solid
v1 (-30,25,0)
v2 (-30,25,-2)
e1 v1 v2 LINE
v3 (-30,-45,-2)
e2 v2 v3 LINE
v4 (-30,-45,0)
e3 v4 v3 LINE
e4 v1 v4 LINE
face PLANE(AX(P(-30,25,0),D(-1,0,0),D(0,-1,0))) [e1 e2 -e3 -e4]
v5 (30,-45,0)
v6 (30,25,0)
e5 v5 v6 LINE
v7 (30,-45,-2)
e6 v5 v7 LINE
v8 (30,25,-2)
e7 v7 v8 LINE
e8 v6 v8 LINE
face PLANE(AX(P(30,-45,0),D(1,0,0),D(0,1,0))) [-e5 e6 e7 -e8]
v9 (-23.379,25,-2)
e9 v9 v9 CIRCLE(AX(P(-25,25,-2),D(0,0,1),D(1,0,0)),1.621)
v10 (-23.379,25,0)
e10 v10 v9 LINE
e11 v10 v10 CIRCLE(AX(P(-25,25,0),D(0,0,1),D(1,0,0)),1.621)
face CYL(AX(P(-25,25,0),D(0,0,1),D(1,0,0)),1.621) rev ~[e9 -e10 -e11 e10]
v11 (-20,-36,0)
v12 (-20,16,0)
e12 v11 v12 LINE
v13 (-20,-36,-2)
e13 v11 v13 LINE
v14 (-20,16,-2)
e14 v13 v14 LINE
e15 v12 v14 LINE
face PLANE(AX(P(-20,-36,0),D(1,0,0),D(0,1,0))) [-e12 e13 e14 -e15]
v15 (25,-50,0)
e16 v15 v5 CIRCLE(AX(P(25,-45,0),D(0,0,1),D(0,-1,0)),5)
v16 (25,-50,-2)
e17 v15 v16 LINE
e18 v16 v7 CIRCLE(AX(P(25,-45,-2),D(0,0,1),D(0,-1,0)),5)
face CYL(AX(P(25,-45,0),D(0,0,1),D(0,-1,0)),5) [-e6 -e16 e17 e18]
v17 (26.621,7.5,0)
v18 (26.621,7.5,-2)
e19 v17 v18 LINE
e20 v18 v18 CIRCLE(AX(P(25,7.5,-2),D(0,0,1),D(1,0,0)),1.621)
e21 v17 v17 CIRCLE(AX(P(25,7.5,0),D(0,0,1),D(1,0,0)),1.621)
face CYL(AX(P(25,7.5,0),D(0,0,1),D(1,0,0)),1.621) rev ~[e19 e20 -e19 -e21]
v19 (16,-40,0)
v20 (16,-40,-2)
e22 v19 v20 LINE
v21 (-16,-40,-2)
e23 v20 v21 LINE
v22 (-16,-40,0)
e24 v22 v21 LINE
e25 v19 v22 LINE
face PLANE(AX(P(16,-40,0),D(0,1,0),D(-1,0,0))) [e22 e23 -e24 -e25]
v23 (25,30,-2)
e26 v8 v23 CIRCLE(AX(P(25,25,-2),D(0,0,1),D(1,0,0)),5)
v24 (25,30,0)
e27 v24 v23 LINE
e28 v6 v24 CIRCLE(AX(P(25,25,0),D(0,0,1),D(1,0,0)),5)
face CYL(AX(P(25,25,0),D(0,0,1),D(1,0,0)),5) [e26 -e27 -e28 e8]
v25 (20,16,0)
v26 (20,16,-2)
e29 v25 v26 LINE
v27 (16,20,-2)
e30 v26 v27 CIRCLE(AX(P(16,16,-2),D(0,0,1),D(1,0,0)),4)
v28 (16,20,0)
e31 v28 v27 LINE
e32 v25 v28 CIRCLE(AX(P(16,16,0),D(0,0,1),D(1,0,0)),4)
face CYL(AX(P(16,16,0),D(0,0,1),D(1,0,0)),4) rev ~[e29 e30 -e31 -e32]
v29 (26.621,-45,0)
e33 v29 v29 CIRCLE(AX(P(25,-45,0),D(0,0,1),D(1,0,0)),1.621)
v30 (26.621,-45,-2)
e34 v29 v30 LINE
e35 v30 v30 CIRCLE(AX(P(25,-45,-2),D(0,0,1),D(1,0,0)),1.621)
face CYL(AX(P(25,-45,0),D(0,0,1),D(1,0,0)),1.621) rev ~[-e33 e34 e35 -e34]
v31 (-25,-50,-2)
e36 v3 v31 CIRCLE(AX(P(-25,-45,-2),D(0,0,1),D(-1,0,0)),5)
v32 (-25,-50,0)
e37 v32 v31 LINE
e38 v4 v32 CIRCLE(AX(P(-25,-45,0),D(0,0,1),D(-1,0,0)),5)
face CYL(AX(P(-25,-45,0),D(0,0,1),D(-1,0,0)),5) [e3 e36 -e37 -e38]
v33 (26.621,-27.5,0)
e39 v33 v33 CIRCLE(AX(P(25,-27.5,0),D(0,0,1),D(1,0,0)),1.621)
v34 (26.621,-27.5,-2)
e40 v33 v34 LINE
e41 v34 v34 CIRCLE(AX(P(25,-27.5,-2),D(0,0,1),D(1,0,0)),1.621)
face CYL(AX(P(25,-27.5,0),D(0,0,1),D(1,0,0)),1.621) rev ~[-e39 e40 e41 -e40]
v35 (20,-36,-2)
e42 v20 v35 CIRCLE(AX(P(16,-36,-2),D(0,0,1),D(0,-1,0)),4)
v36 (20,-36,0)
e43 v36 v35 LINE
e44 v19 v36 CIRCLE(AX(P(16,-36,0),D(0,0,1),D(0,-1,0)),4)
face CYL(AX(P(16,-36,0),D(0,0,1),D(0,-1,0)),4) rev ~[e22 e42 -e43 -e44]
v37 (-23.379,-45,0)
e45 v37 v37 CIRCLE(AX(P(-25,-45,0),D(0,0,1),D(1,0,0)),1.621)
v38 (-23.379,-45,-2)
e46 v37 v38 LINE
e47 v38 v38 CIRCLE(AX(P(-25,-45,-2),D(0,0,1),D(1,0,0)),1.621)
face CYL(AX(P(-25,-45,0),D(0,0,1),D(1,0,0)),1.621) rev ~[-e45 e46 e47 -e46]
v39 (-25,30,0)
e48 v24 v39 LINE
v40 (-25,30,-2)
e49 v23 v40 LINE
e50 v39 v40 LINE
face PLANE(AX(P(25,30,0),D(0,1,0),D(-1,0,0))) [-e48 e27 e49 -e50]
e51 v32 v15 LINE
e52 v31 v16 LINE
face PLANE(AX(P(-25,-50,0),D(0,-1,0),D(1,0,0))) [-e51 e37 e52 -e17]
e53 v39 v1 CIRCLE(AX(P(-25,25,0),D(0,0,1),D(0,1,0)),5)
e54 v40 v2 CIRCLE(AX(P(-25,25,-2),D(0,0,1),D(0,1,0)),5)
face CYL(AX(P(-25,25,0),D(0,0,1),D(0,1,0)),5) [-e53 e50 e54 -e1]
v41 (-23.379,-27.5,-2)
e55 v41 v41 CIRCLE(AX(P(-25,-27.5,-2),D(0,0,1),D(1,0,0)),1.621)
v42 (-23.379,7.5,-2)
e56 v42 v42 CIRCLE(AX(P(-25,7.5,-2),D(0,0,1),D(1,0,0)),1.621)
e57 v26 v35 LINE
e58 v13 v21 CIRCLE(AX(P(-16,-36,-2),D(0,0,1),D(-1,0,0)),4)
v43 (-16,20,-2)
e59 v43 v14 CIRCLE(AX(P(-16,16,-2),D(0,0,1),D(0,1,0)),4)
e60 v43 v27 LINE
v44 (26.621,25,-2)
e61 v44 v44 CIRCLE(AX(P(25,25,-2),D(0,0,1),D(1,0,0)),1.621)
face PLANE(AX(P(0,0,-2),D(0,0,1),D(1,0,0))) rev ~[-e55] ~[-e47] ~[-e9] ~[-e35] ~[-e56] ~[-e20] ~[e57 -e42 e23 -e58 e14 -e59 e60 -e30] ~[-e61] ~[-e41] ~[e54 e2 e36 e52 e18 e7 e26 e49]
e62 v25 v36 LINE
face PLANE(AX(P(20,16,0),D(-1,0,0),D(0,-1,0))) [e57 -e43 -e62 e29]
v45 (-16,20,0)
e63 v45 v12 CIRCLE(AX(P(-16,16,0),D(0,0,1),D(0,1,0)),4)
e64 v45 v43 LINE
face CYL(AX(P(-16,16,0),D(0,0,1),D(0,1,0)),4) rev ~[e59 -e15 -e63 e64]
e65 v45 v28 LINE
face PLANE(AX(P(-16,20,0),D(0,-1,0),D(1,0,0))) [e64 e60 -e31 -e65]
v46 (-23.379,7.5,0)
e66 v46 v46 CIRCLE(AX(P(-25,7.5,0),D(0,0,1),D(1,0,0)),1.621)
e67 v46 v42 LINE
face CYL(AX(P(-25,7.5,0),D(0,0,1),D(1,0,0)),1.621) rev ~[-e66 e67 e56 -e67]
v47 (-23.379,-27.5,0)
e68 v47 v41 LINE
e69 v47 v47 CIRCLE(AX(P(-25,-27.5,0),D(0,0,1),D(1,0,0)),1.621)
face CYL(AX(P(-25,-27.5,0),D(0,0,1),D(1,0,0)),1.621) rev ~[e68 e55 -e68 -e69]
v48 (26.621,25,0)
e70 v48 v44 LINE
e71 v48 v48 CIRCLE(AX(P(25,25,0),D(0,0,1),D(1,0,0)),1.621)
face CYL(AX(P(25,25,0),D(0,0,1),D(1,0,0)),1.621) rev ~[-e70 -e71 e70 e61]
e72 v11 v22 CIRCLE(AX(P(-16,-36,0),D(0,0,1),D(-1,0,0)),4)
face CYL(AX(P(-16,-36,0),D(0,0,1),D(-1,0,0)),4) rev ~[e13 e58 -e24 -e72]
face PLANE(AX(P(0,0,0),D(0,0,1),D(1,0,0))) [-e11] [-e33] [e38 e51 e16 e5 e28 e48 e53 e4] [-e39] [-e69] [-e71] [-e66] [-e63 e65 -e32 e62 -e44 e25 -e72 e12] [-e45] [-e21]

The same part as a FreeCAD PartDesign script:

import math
import FreeCAD as App
import Part
import Sketcher

V = App.Vector

doc = App.newDocument("Part")
body = doc.addObject("PartDesign::Body", "Body")

sketch1 = body.newObject("Sketcher::SketchObject", "Sketch")
sketch1.AttachmentSupport = (doc.getObject("XY_Plane"), [""])
sketch1.MapMode = "FlatFace"
sketch1.addGeometry(Part.LineSegment(V(-30, 25, 0), V(-30, -45, 0)), False)
sketch1.addGeometry(Part.ArcOfCircle(Part.Circle(V(-25, -45, 0), V(0, 0, 1), 5), math.radians(180), math.radians(270)), False)
sketch1.addGeometry(Part.LineSegment(V(-25, -50, 0), V(25, -50, 0)), False)
sketch1.addGeometry(Part.ArcOfCircle(Part.Circle(V(25, -45, 0), V(0, 0, 1), 5), math.radians(-90), math.radians(0)), False)
sketch1.addGeometry(Part.LineSegment(V(30, -45, 0), V(30, 25, 0)), False)
sketch1.addGeometry(Part.ArcOfCircle(Part.Circle(V(25, 25, 0), V(0, 0, 1), 5), math.radians(0), math.radians(90)), False)
sketch1.addGeometry(Part.LineSegment(V(25, 30, 0), V(-25, 30, 0)), False)
sketch1.addGeometry(Part.ArcOfCircle(Part.Circle(V(-25, 25, 0), V(0, 0, 1), 5), math.radians(90), math.radians(180)), False)
sketch1.addGeometry(Part.Circle(V(-25, -45, 0), V(0, 0, 1), 1.6), False)
sketch1.addGeometry(Part.Circle(V(-25, -27.5, 0), V(0, 0, 1), 1.6), False)
sketch1.addGeometry(Part.Circle(V(25, -45, 0), V(0, 0, 1), 1.6), False)
sketch1.addGeometry(Part.Circle(V(25, -27.5, 0), V(0, 0, 1), 1.6), False)
sketch1.addGeometry(Part.Circle(V(-25, 7.5, 0), V(0, 0, 1), 1.6), False)
sketch1.addGeometry(Part.Circle(V(-25, 25, 0), V(0, 0, 1), 1.6), False)
sketch1.addGeometry(Part.ArcOfCircle(Part.Circle(V(16, -36, 0), V(0, 0, 1), 4), math.radians(-90), math.radians(0)), False)
sketch1.addGeometry(Part.LineSegment(V(16, -40, 0), V(-16, -40, 0)), False)
sketch1.addGeometry(Part.ArcOfCircle(Part.Circle(V(-16, -36, 0), V(0, 0, 1), 4), math.radians(180), math.radians(270)), False)
sketch1.addGeometry(Part.LineSegment(V(-20, -36, 0), V(-20, 16, 0)), False)
sketch1.addGeometry(Part.ArcOfCircle(Part.Circle(V(-16, 16, 0), V(0, 0, 1), 4), math.radians(90), math.radians(180)), False)
sketch1.addGeometry(Part.LineSegment(V(-16, 20, 0), V(16, 20, 0)), False)
sketch1.addGeometry(Part.ArcOfCircle(Part.Circle(V(16, 16, 0), V(0, 0, 1), 4), math.radians(0), math.radians(90)), False)
sketch1.addGeometry(Part.LineSegment(V(20, 16, 0), V(20, -36, 0)), False)
sketch1.addGeometry(Part.Circle(V(25, 7.5, 0), V(0, 0, 1), 1.6), False)
sketch1.addGeometry(Part.Circle(V(25, 25, 0), V(0, 0, 1), 1.6), False)
sketch1.addConstraint(Sketcher.Constraint("Tangent", 0, 2, 1, 1))
sketch1.addConstraint(Sketcher.Constraint("Tangent", 1, 2, 2, 1))
sketch1.addConstraint(Sketcher.Constraint("Tangent", 2, 2, 3, 1))
sketch1.addConstraint(Sketcher.Constraint("Tangent", 3, 2, 4, 1))
sketch1.addConstraint(Sketcher.Constraint("Tangent", 4, 2, 5, 1))
sketch1.addConstraint(Sketcher.Constraint("Tangent", 5, 2, 6, 1))
sketch1.addConstraint(Sketcher.Constraint("Tangent", 6, 2, 7, 1))
sketch1.addConstraint(Sketcher.Constraint("Tangent", 7, 2, 0, 1))
sketch1.addConstraint(Sketcher.Constraint("Tangent", 14, 1, 15, 1))
sketch1.addConstraint(Sketcher.Constraint("Tangent", 15, 2, 16, 2))
sketch1.addConstraint(Sketcher.Constraint("Tangent", 16, 1, 17, 1))
sketch1.addConstraint(Sketcher.Constraint("Tangent", 17, 2, 18, 2))
sketch1.addConstraint(Sketcher.Constraint("Tangent", 18, 1, 19, 1))
sketch1.addConstraint(Sketcher.Constraint("Tangent", 19, 2, 20, 2))
sketch1.addConstraint(Sketcher.Constraint("Tangent", 20, 1, 21, 1))
sketch1.addConstraint(Sketcher.Constraint("Tangent", 21, 2, 14, 2))
sketch1.addConstraint(Sketcher.Constraint("Vertical", 0))
sketch1.addConstraint(Sketcher.Constraint("Horizontal", 2))
sketch1.addConstraint(Sketcher.Constraint("Vertical", 4))
sketch1.addConstraint(Sketcher.Constraint("Horizontal", 6))
sketch1.addConstraint(Sketcher.Constraint("Horizontal", 15))
sketch1.addConstraint(Sketcher.Constraint("Vertical", 17))
sketch1.addConstraint(Sketcher.Constraint("Horizontal", 19))
sketch1.addConstraint(Sketcher.Constraint("Vertical", 21))
sketch1.addConstraint(Sketcher.Constraint("Coincident", 8, 3, 1, 3))
sketch1.addConstraint(Sketcher.Constraint("Coincident", 10, 3, 3, 3))
sketch1.addConstraint(Sketcher.Constraint("Coincident", 13, 3, 7, 3))
sketch1.addConstraint(Sketcher.Constraint("Coincident", 23, 3, 5, 3))
sketch1.addConstraint(Sketcher.Constraint("Equal", 1, 3))
sketch1.addConstraint(Sketcher.Constraint("Equal", 3, 5))
sketch1.addConstraint(Sketcher.Constraint("Equal", 5, 7))
sketch1.addConstraint(Sketcher.Constraint("Equal", 8, 9))
sketch1.addConstraint(Sketcher.Constraint("Equal", 9, 10))
sketch1.addConstraint(Sketcher.Constraint("Equal", 10, 11))
sketch1.addConstraint(Sketcher.Constraint("Equal", 11, 12))
sketch1.addConstraint(Sketcher.Constraint("Equal", 12, 13))
sketch1.addConstraint(Sketcher.Constraint("Equal", 14, 16))
sketch1.addConstraint(Sketcher.Constraint("Equal", 16, 18))
sketch1.addConstraint(Sketcher.Constraint("Equal", 18, 20))
sketch1.addConstraint(Sketcher.Constraint("Equal", 13, 22))
sketch1.addConstraint(Sketcher.Constraint("Equal", 22, 23))
sketch1.addConstraint(Sketcher.Constraint("Symmetric", 9, 3, 11, 3, -2))
sketch1.addConstraint(Sketcher.Constraint("Symmetric", 12, 3, 22, 3, -2))
sketch1.addConstraint(Sketcher.Constraint("Vertical", 8, 3, 9, 3))
sketch1.addConstraint(Sketcher.Constraint("Vertical", 10, 3, 11, 3))
sketch1.addConstraint(Sketcher.Constraint("Vertical", 9, 3, 12, 3))
sketch1.addConstraint(Sketcher.Constraint("Radius", 1, 5.0))
sketch1.addConstraint(Sketcher.Constraint("Radius", 14, 4.0))
sketch1.addConstraint(Sketcher.Constraint("DistanceX", 2, 1, 2, 2, 50.0))
sketch1.addConstraint(Sketcher.Constraint("DistanceX", 15, 2, 15, 1, 32.0))
sketch1.addConstraint(Sketcher.Constraint("DistanceY", 0, 2, 0, 1, 70.0))
sketch1.addConstraint(Sketcher.Constraint("DistanceY", 17, 1, 17, 2, 52.0))
sketch1.addConstraint(Sketcher.Constraint("Diameter", 8, 3.242))
sketch1.addConstraint(Sketcher.Constraint("DistanceY", 1, 3, -1, 1, 45.0))
sketch1.addConstraint(Sketcher.Constraint("DistanceX", -1, 1, 14, 3, 16.0))
sketch1.addConstraint(Sketcher.Constraint("DistanceY", 14, 3, -1, 1, 36.0))
sketch1.addConstraint(Sketcher.Constraint("DistanceY", 9, 3, 12, 3, 35.0))
sketch1.addConstraint(Sketcher.Constraint("DistanceY", 9, 3, -1, 1, 27.5))
pad1 = body.newObject("PartDesign::Pad", "Pad")
pad1.Profile = sketch1
pad1.Length = 2
pad1.Reversed = True

doc.recompute()
